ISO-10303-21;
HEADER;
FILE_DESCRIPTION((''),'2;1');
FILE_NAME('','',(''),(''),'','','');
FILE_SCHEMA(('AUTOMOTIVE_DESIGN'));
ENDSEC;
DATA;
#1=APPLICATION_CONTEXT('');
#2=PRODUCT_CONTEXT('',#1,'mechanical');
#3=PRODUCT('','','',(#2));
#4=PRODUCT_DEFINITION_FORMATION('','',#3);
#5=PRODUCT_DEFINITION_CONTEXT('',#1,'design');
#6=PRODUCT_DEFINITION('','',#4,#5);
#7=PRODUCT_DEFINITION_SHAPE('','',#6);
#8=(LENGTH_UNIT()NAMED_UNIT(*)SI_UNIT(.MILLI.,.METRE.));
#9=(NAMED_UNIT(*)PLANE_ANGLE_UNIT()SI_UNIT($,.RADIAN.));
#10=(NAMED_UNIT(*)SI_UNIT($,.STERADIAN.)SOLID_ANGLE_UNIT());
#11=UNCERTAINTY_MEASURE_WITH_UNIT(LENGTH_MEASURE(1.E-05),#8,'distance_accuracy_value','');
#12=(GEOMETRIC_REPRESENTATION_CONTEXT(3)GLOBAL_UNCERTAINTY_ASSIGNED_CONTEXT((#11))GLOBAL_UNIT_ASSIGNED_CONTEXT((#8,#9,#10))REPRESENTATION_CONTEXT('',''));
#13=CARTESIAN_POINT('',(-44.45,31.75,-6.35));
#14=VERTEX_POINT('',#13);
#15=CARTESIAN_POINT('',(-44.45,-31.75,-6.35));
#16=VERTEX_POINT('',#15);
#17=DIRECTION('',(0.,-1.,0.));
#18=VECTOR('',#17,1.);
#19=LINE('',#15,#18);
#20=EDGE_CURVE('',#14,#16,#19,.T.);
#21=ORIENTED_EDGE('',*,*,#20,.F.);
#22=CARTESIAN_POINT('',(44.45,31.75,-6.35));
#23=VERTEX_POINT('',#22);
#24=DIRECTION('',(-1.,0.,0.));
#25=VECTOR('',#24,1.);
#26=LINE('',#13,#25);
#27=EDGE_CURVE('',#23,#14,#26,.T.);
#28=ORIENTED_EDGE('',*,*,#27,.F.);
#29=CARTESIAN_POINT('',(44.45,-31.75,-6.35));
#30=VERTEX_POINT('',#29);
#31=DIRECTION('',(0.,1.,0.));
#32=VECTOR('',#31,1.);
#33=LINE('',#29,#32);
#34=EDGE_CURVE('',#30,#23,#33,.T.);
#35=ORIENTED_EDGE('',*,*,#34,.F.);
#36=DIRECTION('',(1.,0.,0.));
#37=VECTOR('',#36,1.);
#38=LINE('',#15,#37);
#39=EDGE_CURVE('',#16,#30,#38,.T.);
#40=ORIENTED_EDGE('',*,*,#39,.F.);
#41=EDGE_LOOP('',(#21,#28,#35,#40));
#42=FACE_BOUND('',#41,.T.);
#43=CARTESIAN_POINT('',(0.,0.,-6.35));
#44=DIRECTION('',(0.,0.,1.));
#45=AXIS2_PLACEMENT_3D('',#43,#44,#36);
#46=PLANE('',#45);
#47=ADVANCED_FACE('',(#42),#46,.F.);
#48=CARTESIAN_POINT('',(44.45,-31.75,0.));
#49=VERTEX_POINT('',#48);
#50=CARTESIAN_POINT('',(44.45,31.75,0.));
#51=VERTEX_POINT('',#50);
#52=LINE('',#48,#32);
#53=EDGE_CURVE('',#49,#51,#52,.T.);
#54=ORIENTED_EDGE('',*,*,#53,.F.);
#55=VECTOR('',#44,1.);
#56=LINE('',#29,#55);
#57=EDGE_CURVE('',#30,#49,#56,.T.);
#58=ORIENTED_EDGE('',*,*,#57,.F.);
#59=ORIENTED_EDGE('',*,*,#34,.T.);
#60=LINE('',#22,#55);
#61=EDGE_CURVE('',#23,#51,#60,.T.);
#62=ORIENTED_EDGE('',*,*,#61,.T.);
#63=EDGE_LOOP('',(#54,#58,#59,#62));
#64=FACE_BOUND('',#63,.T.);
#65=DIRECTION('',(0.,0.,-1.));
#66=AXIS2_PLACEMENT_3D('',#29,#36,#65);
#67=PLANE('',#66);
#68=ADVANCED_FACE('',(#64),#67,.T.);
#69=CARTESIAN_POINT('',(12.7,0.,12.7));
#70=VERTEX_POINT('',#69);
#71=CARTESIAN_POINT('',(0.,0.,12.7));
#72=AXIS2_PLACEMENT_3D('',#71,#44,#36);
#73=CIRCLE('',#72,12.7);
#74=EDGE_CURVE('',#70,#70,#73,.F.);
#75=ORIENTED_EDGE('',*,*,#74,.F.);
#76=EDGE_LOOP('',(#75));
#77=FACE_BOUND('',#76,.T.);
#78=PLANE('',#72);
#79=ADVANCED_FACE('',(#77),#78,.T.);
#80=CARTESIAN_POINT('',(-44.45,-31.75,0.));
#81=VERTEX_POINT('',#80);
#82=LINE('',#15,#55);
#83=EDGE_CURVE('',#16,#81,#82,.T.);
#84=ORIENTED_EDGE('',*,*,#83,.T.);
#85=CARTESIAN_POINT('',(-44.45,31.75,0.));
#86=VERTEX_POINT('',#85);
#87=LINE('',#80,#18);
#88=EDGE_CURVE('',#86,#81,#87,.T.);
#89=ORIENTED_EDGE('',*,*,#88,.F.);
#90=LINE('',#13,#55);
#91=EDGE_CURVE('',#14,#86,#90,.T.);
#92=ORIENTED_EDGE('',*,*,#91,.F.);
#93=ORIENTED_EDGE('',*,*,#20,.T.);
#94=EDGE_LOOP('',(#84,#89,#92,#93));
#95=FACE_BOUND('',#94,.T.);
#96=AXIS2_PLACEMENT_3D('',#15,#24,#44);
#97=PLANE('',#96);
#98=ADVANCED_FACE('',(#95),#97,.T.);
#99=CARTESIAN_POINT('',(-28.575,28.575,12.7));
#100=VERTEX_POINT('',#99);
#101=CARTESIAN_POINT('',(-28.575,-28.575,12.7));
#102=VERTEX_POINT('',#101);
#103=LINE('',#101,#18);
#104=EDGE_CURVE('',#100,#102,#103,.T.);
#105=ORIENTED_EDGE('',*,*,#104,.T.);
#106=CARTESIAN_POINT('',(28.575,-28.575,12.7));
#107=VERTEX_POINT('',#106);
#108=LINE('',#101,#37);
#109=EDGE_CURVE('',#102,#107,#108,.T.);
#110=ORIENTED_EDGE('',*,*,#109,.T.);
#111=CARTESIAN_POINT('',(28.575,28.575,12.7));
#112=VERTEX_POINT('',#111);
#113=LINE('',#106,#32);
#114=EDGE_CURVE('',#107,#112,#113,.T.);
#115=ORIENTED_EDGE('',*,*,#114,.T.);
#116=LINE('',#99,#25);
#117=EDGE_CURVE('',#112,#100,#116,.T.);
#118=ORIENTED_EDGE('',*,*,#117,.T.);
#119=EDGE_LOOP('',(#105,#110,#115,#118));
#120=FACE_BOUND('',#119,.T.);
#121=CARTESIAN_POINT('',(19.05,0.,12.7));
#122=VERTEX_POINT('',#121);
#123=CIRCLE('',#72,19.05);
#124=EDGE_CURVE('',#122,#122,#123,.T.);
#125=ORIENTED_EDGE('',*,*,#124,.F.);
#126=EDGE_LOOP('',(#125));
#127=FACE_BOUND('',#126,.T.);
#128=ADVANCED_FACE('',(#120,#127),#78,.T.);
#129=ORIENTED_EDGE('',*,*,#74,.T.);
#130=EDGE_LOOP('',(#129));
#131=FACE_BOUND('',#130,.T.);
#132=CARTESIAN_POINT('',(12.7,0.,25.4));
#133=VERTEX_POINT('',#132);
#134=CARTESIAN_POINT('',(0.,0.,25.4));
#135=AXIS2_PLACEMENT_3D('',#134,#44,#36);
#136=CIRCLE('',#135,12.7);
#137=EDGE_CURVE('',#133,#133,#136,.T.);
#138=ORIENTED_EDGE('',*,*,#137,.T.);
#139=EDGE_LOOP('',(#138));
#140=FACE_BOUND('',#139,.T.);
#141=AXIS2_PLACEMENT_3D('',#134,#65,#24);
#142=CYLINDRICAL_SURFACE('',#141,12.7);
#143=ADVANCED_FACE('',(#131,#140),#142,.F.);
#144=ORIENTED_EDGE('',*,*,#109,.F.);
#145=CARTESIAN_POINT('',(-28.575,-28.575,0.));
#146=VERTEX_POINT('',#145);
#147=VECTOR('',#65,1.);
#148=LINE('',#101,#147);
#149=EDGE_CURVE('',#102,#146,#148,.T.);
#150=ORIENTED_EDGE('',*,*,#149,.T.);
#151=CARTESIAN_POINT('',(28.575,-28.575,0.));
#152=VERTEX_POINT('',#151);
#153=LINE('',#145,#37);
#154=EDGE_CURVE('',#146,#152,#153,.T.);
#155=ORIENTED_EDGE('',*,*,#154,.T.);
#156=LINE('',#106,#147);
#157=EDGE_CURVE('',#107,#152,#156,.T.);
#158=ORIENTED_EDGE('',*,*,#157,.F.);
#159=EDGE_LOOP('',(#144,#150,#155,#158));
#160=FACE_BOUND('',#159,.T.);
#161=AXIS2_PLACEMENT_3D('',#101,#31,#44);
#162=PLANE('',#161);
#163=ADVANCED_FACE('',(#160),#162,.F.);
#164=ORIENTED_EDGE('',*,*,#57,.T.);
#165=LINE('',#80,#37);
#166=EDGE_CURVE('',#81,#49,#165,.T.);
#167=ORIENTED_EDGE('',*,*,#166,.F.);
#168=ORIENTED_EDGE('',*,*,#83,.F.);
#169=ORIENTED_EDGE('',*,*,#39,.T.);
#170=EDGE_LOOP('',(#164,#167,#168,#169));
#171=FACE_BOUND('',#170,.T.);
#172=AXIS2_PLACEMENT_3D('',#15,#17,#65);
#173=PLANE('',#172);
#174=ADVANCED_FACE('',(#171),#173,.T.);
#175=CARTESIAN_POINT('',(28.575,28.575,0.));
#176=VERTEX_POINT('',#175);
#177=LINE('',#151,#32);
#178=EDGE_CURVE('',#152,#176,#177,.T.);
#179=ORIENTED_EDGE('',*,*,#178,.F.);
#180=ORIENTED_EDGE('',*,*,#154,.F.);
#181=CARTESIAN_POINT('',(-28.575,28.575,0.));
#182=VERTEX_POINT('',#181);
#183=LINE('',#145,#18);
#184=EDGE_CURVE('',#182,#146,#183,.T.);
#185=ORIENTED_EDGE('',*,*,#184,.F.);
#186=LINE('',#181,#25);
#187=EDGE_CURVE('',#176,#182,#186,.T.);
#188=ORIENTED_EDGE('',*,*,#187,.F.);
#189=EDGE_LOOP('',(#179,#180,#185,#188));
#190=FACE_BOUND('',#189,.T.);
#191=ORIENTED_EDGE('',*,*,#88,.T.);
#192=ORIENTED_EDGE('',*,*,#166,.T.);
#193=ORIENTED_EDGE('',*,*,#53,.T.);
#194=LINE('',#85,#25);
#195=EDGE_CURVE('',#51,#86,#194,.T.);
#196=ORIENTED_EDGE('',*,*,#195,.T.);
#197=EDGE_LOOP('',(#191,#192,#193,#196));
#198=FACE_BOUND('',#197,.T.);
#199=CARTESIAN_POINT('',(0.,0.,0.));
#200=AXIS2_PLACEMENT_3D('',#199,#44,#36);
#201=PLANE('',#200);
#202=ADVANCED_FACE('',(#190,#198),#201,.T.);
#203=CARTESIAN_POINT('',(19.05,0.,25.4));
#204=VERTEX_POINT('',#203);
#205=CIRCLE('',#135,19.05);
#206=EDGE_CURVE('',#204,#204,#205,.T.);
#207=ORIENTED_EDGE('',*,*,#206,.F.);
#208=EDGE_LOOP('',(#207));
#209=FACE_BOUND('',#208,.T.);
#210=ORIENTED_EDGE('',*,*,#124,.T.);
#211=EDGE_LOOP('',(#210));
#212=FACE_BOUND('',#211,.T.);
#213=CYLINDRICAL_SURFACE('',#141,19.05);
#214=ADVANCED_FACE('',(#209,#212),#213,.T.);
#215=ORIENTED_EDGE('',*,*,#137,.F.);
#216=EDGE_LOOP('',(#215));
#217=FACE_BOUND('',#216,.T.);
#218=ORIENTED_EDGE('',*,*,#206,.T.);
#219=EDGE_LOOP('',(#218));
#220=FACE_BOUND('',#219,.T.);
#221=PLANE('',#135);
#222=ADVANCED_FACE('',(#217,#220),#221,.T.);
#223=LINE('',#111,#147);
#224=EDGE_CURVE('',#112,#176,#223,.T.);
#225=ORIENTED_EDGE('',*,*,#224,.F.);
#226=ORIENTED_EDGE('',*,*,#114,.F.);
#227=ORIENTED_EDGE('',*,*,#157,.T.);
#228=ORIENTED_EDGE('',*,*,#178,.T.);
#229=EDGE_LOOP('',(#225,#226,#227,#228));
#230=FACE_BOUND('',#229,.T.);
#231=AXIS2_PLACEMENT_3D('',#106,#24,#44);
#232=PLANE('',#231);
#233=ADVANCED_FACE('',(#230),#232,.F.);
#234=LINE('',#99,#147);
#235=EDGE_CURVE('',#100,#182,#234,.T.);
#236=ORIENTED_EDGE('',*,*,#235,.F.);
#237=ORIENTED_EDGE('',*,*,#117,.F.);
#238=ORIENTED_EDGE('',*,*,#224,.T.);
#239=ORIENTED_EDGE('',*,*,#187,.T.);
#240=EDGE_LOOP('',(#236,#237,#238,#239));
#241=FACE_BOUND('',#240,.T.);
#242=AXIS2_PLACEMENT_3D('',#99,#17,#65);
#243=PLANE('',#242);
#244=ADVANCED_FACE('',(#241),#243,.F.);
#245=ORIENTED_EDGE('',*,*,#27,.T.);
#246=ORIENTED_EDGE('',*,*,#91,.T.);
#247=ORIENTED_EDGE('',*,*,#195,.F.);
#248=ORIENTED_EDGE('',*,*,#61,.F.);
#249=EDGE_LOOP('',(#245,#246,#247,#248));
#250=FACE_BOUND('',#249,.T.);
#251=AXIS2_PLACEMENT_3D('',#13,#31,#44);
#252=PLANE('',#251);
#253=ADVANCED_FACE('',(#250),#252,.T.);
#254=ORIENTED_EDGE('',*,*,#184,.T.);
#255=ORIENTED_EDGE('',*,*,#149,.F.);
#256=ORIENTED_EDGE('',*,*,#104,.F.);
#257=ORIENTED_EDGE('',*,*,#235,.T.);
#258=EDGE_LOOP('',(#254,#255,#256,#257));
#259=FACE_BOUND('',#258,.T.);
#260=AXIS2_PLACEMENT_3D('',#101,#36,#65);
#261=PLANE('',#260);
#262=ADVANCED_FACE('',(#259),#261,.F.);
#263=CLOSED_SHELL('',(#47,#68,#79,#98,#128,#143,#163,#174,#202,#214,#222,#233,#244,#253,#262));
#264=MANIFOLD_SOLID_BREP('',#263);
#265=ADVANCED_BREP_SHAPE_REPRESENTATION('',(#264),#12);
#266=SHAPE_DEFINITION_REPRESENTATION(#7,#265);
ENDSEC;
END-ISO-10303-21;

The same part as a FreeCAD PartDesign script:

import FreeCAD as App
import Part
import Sketcher
from FreeCAD import Vector
Q = App.Units.Quantity

doc = App.newDocument("Part")
body = doc.addObject("PartDesign::Body", "Body")

# Sketch on XY plane
sketch1 = body.newObject("Sketcher::SketchObject", "Sketch")
sketch1.AttachmentSupport = (doc.getObject("XY_Plane"), [""])
sketch1.MapMode = "FlatFace"
sketch1.addGeometry([
    Part.LineSegment(Vector(-44.45, 31.75, 0), Vector(-44.45, -31.75, 0)),
    Part.LineSegment(Vector(-44.45, -31.75, 0), Vector(44.45, -31.75, 0)),
    Part.LineSegment(Vector(44.45, -31.75, 0), Vector(44.45, 31.75, 0)),
    Part.LineSegment(Vector(44.45, 31.75, 0), Vector(-44.45, 31.75, 0)),
], False)
sketch1.addConstraint([
    Sketcher.Constraint("Coincident", 0, 2, 1, 1),
    Sketcher.Constraint("Coincident", 1, 2, 2, 1),
    Sketcher.Constraint("Coincident", 2, 2, 3, 1),
    Sketcher.Constraint("Coincident", 3, 2, 0, 1),
    Sketcher.Constraint("Vertical", 0),
    Sketcher.Constraint("Horizontal", 1),
    Sketcher.Constraint("Vertical", 2),
    Sketcher.Constraint("Horizontal", 3),
    Sketcher.Constraint("Symmetric", 0, 2, 2, 2, -1, 1),
    Sketcher.Constraint("DistanceX", 1, 1, 1, 2, Q("3.5 in")),
    Sketcher.Constraint("DistanceY", 0, 2, 0, 1, Q("2.5 in")),
])
pad1 = body.newObject("PartDesign::Pad", "Pad")
pad1.Profile = sketch1
pad1.Length = Q("0.25 in")
pad1.Reversed = True

# Sketch on XY plane
sketch2 = body.newObject("Sketcher::SketchObject", "Sketch001")
sketch2.AttachmentSupport = (doc.getObject("XY_Plane"), [""])
sketch2.MapMode = "FlatFace"
sketch2.addGeometry([
    Part.LineSegment(Vector(-28.575, 28.575, 0), Vector(-28.575, -28.575, 0)),
    Part.LineSegment(Vector(-28.575, -28.575, 0), Vector(28.575, -28.575, 0)),
    Part.LineSegment(Vector(28.575, -28.575, 0), Vector(28.575, 28.575, 0)),
    Part.LineSegment(Vector(28.575, 28.575, 0), Vector(-28.575, 28.575, 0)),
], False)
sketch2.addConstraint([
    Sketcher.Constraint("Coincident", 0, 2, 1, 1),
    Sketcher.Constraint("Coincident", 1, 2, 2, 1),
    Sketcher.Constraint("Coincident", 2, 2, 3, 1),
    Sketcher.Constraint("Coincident", 3, 2, 0, 1),
    Sketcher.Constraint("Vertical", 0),
    Sketcher.Constraint("Horizontal", 1),
    Sketcher.Constraint("Vertical", 2),
    Sketcher.Constraint("Horizontal", 3),
    Sketcher.Constraint("Symmetric", 0, 2, 2, 2, -1, 1),
    Sketcher.Constraint("Equal", 3, 0),
    Sketcher.Constraint("DistanceX", 1, 1, 1, 2, Q("2.25 in")),
])
pad2 = body.newObject("PartDesign::Pad", "Pad001")
pad2.Profile = sketch2
pad2.Length = Q("0.5 in")

# Sketch on XY plane
sketch3 = body.newObject("Sketcher::SketchObject", "Sketch002")
sketch3.AttachmentSupport = (doc.getObject("XY_Plane"), [""])
sketch3.MapMode = "FlatFace"
sketch3.AttachmentOffset = App.Placement(Vector(0, 0, 0.5 * 25.4), App.Rotation())
sketch3.addGeometry([
    Part.Circle(Vector(0, 0, 0), Vector(0, 0, 1), 19.05),
    Part.Circle(Vector(0, 0, 0), Vector(0, 0, 1), 12.7),
], False)
sketch3.addConstraint([
    Sketcher.Constraint("Coincident", 0, 3, -1, 1),
    Sketcher.Constraint("Coincident", 1, 3, -1, 1),
    Sketcher.Constraint("Diameter", 1, Q("1 in")),
    Sketcher.Constraint("Diameter", 0, Q("1.5 in")),
])
pad3 = body.newObject("PartDesign::Pad", "Pad002")
pad3.Profile = sketch3
pad3.Length = Q("0.5 in")

doc.recompute()
